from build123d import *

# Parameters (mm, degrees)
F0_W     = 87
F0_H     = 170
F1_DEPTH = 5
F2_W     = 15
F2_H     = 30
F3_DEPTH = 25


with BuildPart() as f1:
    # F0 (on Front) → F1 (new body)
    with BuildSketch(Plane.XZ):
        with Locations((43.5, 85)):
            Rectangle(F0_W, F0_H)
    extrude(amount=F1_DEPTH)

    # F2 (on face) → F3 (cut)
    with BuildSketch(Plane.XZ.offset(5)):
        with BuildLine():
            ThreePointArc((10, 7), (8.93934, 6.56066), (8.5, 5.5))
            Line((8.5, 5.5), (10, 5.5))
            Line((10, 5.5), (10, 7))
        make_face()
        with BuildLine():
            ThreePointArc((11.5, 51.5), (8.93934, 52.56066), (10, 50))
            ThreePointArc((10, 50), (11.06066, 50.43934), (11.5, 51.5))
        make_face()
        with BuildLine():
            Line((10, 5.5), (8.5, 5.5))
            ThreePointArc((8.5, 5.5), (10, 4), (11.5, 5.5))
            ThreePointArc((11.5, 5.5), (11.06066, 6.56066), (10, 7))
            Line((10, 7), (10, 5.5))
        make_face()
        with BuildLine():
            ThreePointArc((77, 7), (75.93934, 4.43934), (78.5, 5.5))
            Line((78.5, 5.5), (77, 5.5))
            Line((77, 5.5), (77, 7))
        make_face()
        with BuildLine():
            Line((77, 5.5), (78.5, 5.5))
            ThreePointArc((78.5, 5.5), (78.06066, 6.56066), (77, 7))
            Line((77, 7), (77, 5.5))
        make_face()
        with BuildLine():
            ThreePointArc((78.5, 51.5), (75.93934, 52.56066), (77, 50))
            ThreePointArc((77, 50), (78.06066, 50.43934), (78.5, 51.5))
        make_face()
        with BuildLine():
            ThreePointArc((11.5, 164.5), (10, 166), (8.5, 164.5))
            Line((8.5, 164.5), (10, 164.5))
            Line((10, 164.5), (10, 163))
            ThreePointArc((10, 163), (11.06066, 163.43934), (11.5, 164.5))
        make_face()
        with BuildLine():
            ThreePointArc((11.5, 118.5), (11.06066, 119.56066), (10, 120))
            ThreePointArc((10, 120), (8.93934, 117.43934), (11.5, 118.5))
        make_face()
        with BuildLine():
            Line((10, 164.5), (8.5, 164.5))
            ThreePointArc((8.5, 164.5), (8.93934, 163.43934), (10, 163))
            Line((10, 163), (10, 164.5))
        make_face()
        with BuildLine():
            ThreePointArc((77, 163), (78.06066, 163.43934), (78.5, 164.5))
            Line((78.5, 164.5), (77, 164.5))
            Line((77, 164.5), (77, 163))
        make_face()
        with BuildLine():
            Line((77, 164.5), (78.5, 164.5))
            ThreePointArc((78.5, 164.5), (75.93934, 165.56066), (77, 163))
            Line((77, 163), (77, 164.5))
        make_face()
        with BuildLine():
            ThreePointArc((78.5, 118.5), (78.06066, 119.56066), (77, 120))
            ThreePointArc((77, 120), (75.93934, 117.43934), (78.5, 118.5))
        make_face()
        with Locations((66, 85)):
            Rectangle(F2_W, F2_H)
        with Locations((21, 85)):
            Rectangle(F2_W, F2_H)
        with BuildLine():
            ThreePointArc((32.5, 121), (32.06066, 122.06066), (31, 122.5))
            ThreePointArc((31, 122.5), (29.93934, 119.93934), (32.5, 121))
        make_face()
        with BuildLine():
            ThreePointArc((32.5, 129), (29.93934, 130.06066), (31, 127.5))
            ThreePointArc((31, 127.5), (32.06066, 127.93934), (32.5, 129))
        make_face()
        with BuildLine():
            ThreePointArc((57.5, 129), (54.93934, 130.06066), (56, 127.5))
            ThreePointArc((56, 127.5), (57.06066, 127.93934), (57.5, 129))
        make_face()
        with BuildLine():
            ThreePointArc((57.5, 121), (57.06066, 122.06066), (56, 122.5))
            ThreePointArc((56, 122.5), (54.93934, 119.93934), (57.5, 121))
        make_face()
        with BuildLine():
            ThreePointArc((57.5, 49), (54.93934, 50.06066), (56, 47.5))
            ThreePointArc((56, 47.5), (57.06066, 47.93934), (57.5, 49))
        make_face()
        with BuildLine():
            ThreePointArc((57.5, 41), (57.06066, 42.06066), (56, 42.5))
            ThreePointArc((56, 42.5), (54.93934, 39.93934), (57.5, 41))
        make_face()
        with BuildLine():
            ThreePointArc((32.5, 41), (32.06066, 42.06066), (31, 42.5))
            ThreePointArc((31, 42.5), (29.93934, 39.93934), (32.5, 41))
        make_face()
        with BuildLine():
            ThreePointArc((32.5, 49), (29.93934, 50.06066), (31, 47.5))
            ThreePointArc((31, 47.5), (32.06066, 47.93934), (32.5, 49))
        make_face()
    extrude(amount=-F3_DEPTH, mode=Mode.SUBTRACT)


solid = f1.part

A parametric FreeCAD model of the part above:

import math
import FreeCAD as App
import Part
import Sketcher

V = App.Vector


def add_polygon(sketch, points):
    """Adds a closed chain of lines whose ends are joined by coincident constraints."""
    first, n = sketch.GeometryCount, len(points)
    for a, b in zip(points, points[1:] + points[:1]):
        sketch.addGeometry(Part.LineSegment(App.Vector(*a, 0), App.Vector(*b, 0)), False)
    for i in range(n):
        sketch.addConstraint(Sketcher.Constraint("Coincident", first + i, 2, first + (i + 1) % n, 1))

doc = App.newDocument("Part")
body = doc.addObject("PartDesign::Body", "Body")

sketch1 = body.newObject("Sketcher::SketchObject", "Sketch")
sketch1.AttachmentSupport = (doc.getObject("XZ_Plane"), [""])
sketch1.MapMode = "FlatFace"
add_polygon(sketch1, [(0, 170), (0, 0), (87, 0), (87, 170)])
sketch1.addConstraint(Sketcher.Constraint("Vertical", 0))
sketch1.addConstraint(Sketcher.Constraint("Horizontal", 1))
sketch1.addConstraint(Sketcher.Constraint("Vertical", 2))
sketch1.addConstraint(Sketcher.Constraint("Horizontal", 3))
sketch1.addConstraint(Sketcher.Constraint("Coincident", 0, 2, -1, 1))
sketch1.addConstraint(Sketcher.Constraint("DistanceX", 1, 1, 1, 2, 87.0))
sketch1.addConstraint(Sketcher.Constraint("DistanceY", 0, 2, 0, 1, 170.0))
pad1 = body.newObject("PartDesign::Pad", "Pad")
pad1.Profile = sketch1
pad1.Length = 5

sketch2 = body.newObject("Sketcher::SketchObject", "Sketch001")
sketch2.AttachmentSupport = (doc.getObject("XZ_Plane"), [""])
sketch2.MapMode = "FlatFace"
sketch2.AttachmentOffset = App.Placement(V(0, 0, 5), App.Rotation())
sketch2.addGeometry(Part.ArcOfCircle(Part.Circle(V(10.000001, 5.499999, 0), V(0, 0, 1), 1.500001), math.radians(90.000022), math.radians(179.999978)), False)
sketch2.addGeometry(Part.ArcOfCircle(Part.Circle(V(10, 5.5, 0), V(0, 0, 1), 1.5), math.radians(180), math.radians(360)), False)
sketch2.addGeometry(Part.ArcOfCircle(Part.Circle(V(9.999999, 5.499999, 0), V(0, 0, 1), 1.500001), math.radians(0.000022), math.radians(89.999978)), False)
sketch2.addGeometry(Part.ArcOfCircle(Part.Circle(V(10, 51.5, 0), V(0, 0, 1), 1.5), math.radians(0.000004), math.radians(269.999996)), False)
sketch2.addGeometry(Part.ArcOfCircle(Part.Circle(V(9.999999, 51.500001, 0), V(0, 0, 1), 1.500001), math.radians(-89.999978), math.radians(-0.000022)), False)
sketch2.addGeometry(Part.ArcOfCircle(Part.Circle(V(77, 5.5, 0), V(0, 0, 1), 1.5), math.radians(90.000004), math.radians(359.999996)), False)
sketch2.addGeometry(Part.ArcOfCircle(Part.Circle(V(76.999999, 5.499999, 0), V(0, 0, 1), 1.500001), math.radians(0.000022), math.radians(89.999978)), False)
sketch2.addGeometry(Part.ArcOfCircle(Part.Circle(V(77, 51.5, 0), V(0, 0, 1), 1.5), math.radians(0.000004), math.radians(269.999996)), False)
sketch2.addGeometry(Part.ArcOfCircle(Part.Circle(V(76.999999, 51.500001, 0), V(0, 0, 1), 1.500001), math.radians(-89.999978), math.radians(-0.000022)), False)
sketch2.addGeometry(Part.ArcOfCircle(Part.Circle(V(10, 164.5, 0), V(0, 0, 1), 1.5), math.radians(0), math.radians(180)), False)
sketch2.addGeometry(Part.ArcOfCircle(Part.Circle(V(10.000001, 164.500001, 0), V(0, 0, 1), 1.500001), math.radians(-179.999978), math.radians(-90.000022)), False)
sketch2.addGeometry(Part.ArcOfCircle(Part.Circle(V(9.999999, 164.500001, 0), V(0, 0, 1), 1.500001), math.radians(-89.999978), math.radians(-0.000022)), False)
sketch2.addGeometry(Part.ArcOfCircle(Part.Circle(V(9.999999, 118.499999, 0), V(0, 0, 1), 1.500001), math.radians(0.000022), math.radians(89.999978)), False)
sketch2.addGeometry(Part.ArcOfCircle(Part.Circle(V(10, 118.5, 0), V(0, 0, 1), 1.5), math.radians(90.000004), math.radians(359.999996)), False)
sketch2.addGeometry(Part.ArcOfCircle(Part.Circle(V(76.999999, 164.500001, 0), V(0, 0, 1), 1.500001), math.radians(-89.999978), math.radians(-0.000022)), False)
sketch2.addGeometry(Part.ArcOfCircle(Part.Circle(V(77, 164.5, 0), V(0, 0, 1), 1.5), math.radians(0.000004), math.radians(269.999996)), False)
sketch2.addGeometry(Part.ArcOfCircle(Part.Circle(V(76.999999, 118.499999, 0), V(0, 0, 1), 1.500001), math.radians(0.000022), math.radians(89.999978)), False)
sketch2.addGeometry(Part.ArcOfCircle(Part.Circle(V(77, 118.5, 0), V(0, 0, 1), 1.5), math.radians(90.000004), math.radians(359.999996)), False)
add_polygon(sketch2, [(58.5, 100), (58.5, 70), (73.5, 70), (73.5, 100)])
add_polygon(sketch2, [(13.5, 100), (13.5, 70), (28.5, 70), (28.5, 100)])
sketch2.addGeometry(Part.ArcOfCircle(Part.Circle(V(30.999999, 120.999999, 0), V(0, 0, 1), 1.500001), math.radians(0.000022), math.radians(89.999978)), False)
sketch2.addGeometry(Part.ArcOfCircle(Part.Circle(V(31, 121, 0), V(0, 0, 1), 1.5), math.radians(90.000004), math.radians(359.999996)), False)
sketch2.addGeometry(Part.ArcOfCircle(Part.Circle(V(31, 129, 0), V(0, 0, 1), 1.5), math.radians(0.000004), math.radians(269.999996)), False)
sketch2.addGeometry(Part.ArcOfCircle(Part.Circle(V(30.999999, 129.000001, 0), V(0, 0, 1), 1.500001), math.radians(-89.999978), math.radians(-0.000022)), False)
sketch2.addGeometry(Part.ArcOfCircle(Part.Circle(V(56, 129, 0), V(0, 0, 1), 1.5), math.radians(0.000004), math.radians(269.999996)), False)
sketch2.addGeometry(Part.ArcOfCircle(Part.Circle(V(55.999999, 129.000001, 0), V(0, 0, 1), 1.500001), math.radians(-89.999978), math.radians(-0.000022)), False)
sketch2.addGeometry(Part.ArcOfCircle(Part.Circle(V(55.999999, 120.999999, 0), V(0, 0, 1), 1.500001), math.radians(0.000022), math.radians(89.999978)), False)
sketch2.addGeometry(Part.ArcOfCircle(Part.Circle(V(56, 121, 0), V(0, 0, 1), 1.5), math.radians(90.000004), math.radians(359.999996)), False)
sketch2.addGeometry(Part.ArcOfCircle(Part.Circle(V(56, 49, 0), V(0, 0, 1), 1.5), math.radians(0.000004), math.radians(269.999996)), False)
sketch2.addGeometry(Part.ArcOfCircle(Part.Circle(V(55.999999, 49.000001, 0), V(0, 0, 1), 1.500001), math.radians(-89.999978), math.radians(-0.000022)), False)
sketch2.addGeometry(Part.ArcOfCircle(Part.Circle(V(55.999999, 40.999999, 0), V(0, 0, 1), 1.500001), math.radians(0.000022), math.radians(89.999978)), False)
sketch2.addGeometry(Part.ArcOfCircle(Part.Circle(V(56, 41, 0), V(0, 0, 1), 1.5), math.radians(90.000004), math.radians(359.999996)), False)
sketch2.addGeometry(Part.ArcOfCircle(Part.Circle(V(30.999999, 40.999999, 0), V(0, 0, 1), 1.500001), math.radians(0.000022), math.radians(89.999978)), False)
sketch2.addGeometry(Part.ArcOfCircle(Part.Circle(V(31, 41, 0), V(0, 0, 1), 1.5), math.radians(90.000004), math.radians(359.999996)), False)
sketch2.addGeometry(Part.ArcOfCircle(Part.Circle(V(31, 49, 0), V(0, 0, 1), 1.5), math.radians(0.000004), math.radians(269.999996)), False)
sketch2.addGeometry(Part.ArcOfCircle(Part.Circle(V(30.999999, 49.000001, 0), V(0, 0, 1), 1.500001), math.radians(-89.999978), math.radians(-0.000022)), False)
sketch2.addConstraint(Sketcher.Constraint("Tangent", 0, 2, 1, 1))
sketch2.addConstraint(Sketcher.Constraint("Tangent", 1, 2, 2, 1))
sketch2.addConstraint(Sketcher.Constraint("Tangent", 2, 2, 0, 1))
sketch2.addConstraint(Sketcher.Constraint("Tangent", 3, 1, 4, 2))
sketch2.addConstraint(Sketcher.Constraint("Coincident", 4, 1, 3, 2))
sketch2.addConstraint(Sketcher.Constraint("Tangent", 5, 1, 6, 2))
sketch2.addConstraint(Sketcher.Constraint("Coincident", 6, 1, 5, 2))
sketch2.addConstraint(Sketcher.Constraint("Tangent", 7, 1, 8, 2))
sketch2.addConstraint(Sketcher.Constraint("Coincident", 8, 1, 7, 2))
sketch2.addConstraint(Sketcher.Constraint("Tangent", 9, 2, 10, 1))
sketch2.addConstraint(Sketcher.Constraint("Tangent", 10, 2, 11, 1))
sketch2.addConstraint(Sketcher.Constraint("Tangent", 11, 2, 9, 1))
sketch2.addConstraint(Sketcher.Constraint("Tangent", 12, 1, 13, 2))
sketch2.addConstraint(Sketcher.Constraint("Coincident", 13, 1, 12, 2))
sketch2.addConstraint(Sketcher.Constraint("Tangent", 14, 1, 15, 2))
sketch2.addConstraint(Sketcher.Constraint("Coincident", 15, 1, 14, 2))
sketch2.addConstraint(Sketcher.Constraint("Tangent", 16, 1, 17, 2))
sketch2.addConstraint(Sketcher.Constraint("Coincident", 17, 1, 16, 2))
sketch2.addConstraint(Sketcher.Constraint("Tangent", 26, 1, 27, 2))
sketch2.addConstraint(Sketcher.Constraint("Coincident", 27, 1, 26, 2))
sketch2.addConstraint(Sketcher.Constraint("Tangent", 28, 1, 29, 2))
sketch2.addConstraint(Sketcher.Constraint("Coincident", 29, 1, 28, 2))
sketch2.addConstraint(Sketcher.Constraint("Tangent", 30, 1, 31, 2))
sketch2.addConstraint(Sketcher.Constraint("Coincident", 31, 1, 30, 2))
sketch2.addConstraint(Sketcher.Constraint("Tangent", 32, 1, 33, 2))
sketch2.addConstraint(Sketcher.Constraint("Coincident", 33, 1, 32, 2))
sketch2.addConstraint(Sketcher.Constraint("Tangent", 34, 1, 35, 2))
sketch2.addConstraint(Sketcher.Constraint("Coincident", 35, 1, 34, 2))
sketch2.addConstraint(Sketcher.Constraint("Tangent", 36, 1, 37, 2))
sketch2.addConstraint(Sketcher.Constraint("Coincident", 37, 1, 36, 2))
sketch2.addConstraint(Sketcher.Constraint("Tangent", 38, 1, 39, 2))
sketch2.addConstraint(Sketcher.Constraint("Coincident", 39, 1, 38, 2))
sketch2.addConstraint(Sketcher.Constraint("Tangent", 40, 1, 41, 2))
sketch2.addConstraint(Sketcher.Constraint("Coincident", 41, 1, 40, 2))
sketch2.addConstraint(Sketcher.Constraint("Vertical", 18))
sketch2.addConstraint(Sketcher.Constraint("Horizontal", 19))
sketch2.addConstraint(Sketcher.Constraint("Vertical", 20))
sketch2.addConstraint(Sketcher.Constraint("Horizontal", 21))
sketch2.addConstraint(Sketcher.Constraint("Vertical", 22))
sketch2.addConstraint(Sketcher.Constraint("Horizontal", 23))
sketch2.addConstraint(Sketcher.Constraint("Vertical", 24))
sketch2.addConstraint(Sketcher.Constraint("Horizontal", 25))
sketch2.addConstraint(Sketcher.Constraint("Equal", 2, 3))
sketch2.addConstraint(Sketcher.Constraint("Equal", 4, 5))
sketch2.addConstraint(Sketcher.Constraint("Equal", 6, 7))
sketch2.addConstraint(Sketcher.Constraint("Equal", 8, 9))
sketch2.addConstraint(Sketcher.Constraint("Equal", 11, 12))
sketch2.addConstraint(Sketcher.Constraint("Equal", 13, 14))
sketch2.addConstraint(Sketcher.Constraint("Equal", 15, 16))
sketch2.addConstraint(Sketcher.Constraint("Equal", 17, 26))
sketch2.addConstraint(Sketcher.Constraint("Equal", 27, 28))
sketch2.addConstraint(Sketcher.Constraint("Equal", 29, 30))
sketch2.addConstraint(Sketcher.Constraint("Equal", 31, 32))
sketch2.addConstraint(Sketcher.Constraint("Equal", 33, 34))
sketch2.addConstraint(Sketcher.Constraint("Equal", 35, 36))
sketch2.addConstraint(Sketcher.Constraint("Equal", 37, 38))
sketch2.addConstraint(Sketcher.Constraint("Equal", 39, 40))
sketch2.addConstraint(Sketcher.Constraint("Horizontal", 2, 3, 5, 3))
sketch2.addConstraint(Sketcher.Constraint("Horizontal", 4, 3, 7, 3))
sketch2.addConstraint(Sketcher.Constraint("Horizontal", 11, 3, 14, 3))
sketch2.addConstraint(Sketcher.Constraint("Horizontal", 13, 3, 16, 3))
sketch2.addConstraint(Sketcher.Constraint("Horizontal", 29, 3, 30, 3))
sketch2.addConstraint(Sketcher.Constraint("Horizontal", 27, 3, 32, 3))
sketch2.addConstraint(Sketcher.Constraint("Horizontal", 37, 3, 38, 3))
sketch2.addConstraint(Sketcher.Constraint("Horizontal", 35, 3, 40, 3))
sketch2.addConstraint(Sketcher.Constraint("Horizontal", 6, 3, 0, 2))
sketch2.addConstraint(Sketcher.Constraint("Horizontal", 0, 2, 1, 2))
sketch2.addConstraint(Sketcher.Constraint("Horizontal", 8, 3, 3, 1))
sketch2.addConstraint(Sketcher.Constraint("Horizontal", 1, 2, 6, 1))
sketch2.addConstraint(Sketcher.Constraint("Horizontal", 3, 1, 7, 1))
sketch2.addConstraint(Sketcher.Constraint("Horizontal", 15, 3, 9, 2))
sketch2.addConstraint(Sketcher.Constraint("Horizontal", 9, 2, 11, 2))
sketch2.addConstraint(Sketcher.Constraint("Horizontal", 17, 3, 12, 1))
sketch2.addConstraint(Sketcher.Constraint("Horizontal", 11, 2, 15, 1))
sketch2.addConstraint(Sketcher.Constraint("Horizontal", 12, 1, 16, 1))
sketch2.addConstraint(Sketcher.Constraint("Horizontal", 19, 2, 22, 2))
sketch2.addConstraint(Sketcher.Constraint("Horizontal", 21, 2, 24, 2))
sketch2.addConstraint(Sketcher.Constraint("Horizontal", 33, 3, 26, 1))
sketch2.addConstraint(Sketcher.Constraint("Horizontal", 31, 3, 28, 1))
sketch2.addConstraint(Sketcher.Constraint("Horizontal", 28, 1, 30, 1))
sketch2.addConstraint(Sketcher.Constraint("Horizontal", 26, 1, 32, 1))
sketch2.addConstraint(Sketcher.Constraint("Horizontal", 41, 3, 34, 1))
sketch2.addConstraint(Sketcher.Constraint("Horizontal", 39, 3, 36, 1))
sketch2.addConstraint(Sketcher.Constraint("Horizontal", 36, 1, 38, 1))
sketch2.addConstraint(Sketcher.Constraint("Horizontal", 34, 1, 40, 1))
sketch2.addConstraint(Sketcher.Constraint("Vertical", 2, 3, 3, 3))
sketch2.addConstraint(Sketcher.Constraint("Vertical", 6, 3, 7, 3))
sketch2.addConstraint(Sketcher.Constraint("Vertical", 4, 3, 9, 3))
sketch2.addConstraint(Sketcher.Constraint("Vertical", 11, 3, 12, 3))
sketch2.addConstraint(Sketcher.Constraint("Vertical", 8, 3, 14, 3))
sketch2.addConstraint(Sketcher.Constraint("Vertical", 15, 3, 16, 3))
sketch2.addConstraint(Sketcher.Constraint("Vertical", 27, 3, 28, 3))
sketch2.addConstraint(Sketcher.Constraint("Vertical", 31, 3, 32, 3))
sketch2.addConstraint(Sketcher.Constraint("Vertical", 33, 3, 34, 3))
sketch2.addConstraint(Sketcher.Constraint("Vertical", 35, 3, 36, 3))
sketch2.addConstraint(Sketcher.Constraint("Vertical", 29, 3, 38, 3))
sketch2.addConstraint(Sketcher.Constraint("Vertical", 39, 3, 40, 3))
sketch2.addConstraint(Sketcher.Constraint("Vertical", 13, 3, 2, 2))
sketch2.addConstraint(Sketcher.Constraint("Vertical", 2, 2, 4, 1))
sketch2.addConstraint(Sketcher.Constraint("Vertical", 17, 3, 5, 1))
sketch2.addConstraint(Sketcher.Constraint("Vertical", 5, 1, 8, 1))
sketch2.addConstraint(Sketcher.Constraint("Vertical", 4, 1, 10, 2))
sketch2.addConstraint(Sketcher.Constraint("Vertical", 10, 2, 13, 1))
sketch2.addConstraint(Sketcher.Constraint("Vertical", 8, 1, 14, 1))
sketch2.addConstraint(Sketcher.Constraint("Vertical", 14, 1, 17, 1))
sketch2.addConstraint(Sketcher.Constraint("Vertical", 41, 3, 27, 1))
sketch2.addConstraint(Sketcher.Constraint("Vertical", 27, 1, 29, 1))
sketch2.addConstraint(Sketcher.Constraint("Vertical", 37, 3, 31, 1))
sketch2.addConstraint(Sketcher.Constraint("Vertical", 31, 1, 33, 1))
sketch2.addConstraint(Sketcher.Constraint("Vertical", 33, 1, 35, 1))
sketch2.addConstraint(Sketcher.Constraint("Vertical", 35, 1, 37, 1))
sketch2.addConstraint(Sketcher.Constraint("Vertical", 29, 1, 39, 1))
sketch2.addConstraint(Sketcher.Constraint("Vertical", 39, 1, 41, 1))
sketch2.addConstraint(Sketcher.Constraint("Equal", 21, 23))
sketch2.addConstraint(Sketcher.Constraint("Radius", 0, 1.500001))
sketch2.addConstraint(Sketcher.Constraint("DistanceX", 19, 1, 19, 2, 15.0))
sketch2.addConstraint(Sketcher.Constraint("DistanceY", 18, 2, 18, 1, 30.0))
sketch2.addConstraint(Sketcher.Constraint("DistanceX", -1, 1, 0, 3, 10.000001))
sketch2.addConstraint(Sketcher.Constraint("DistanceX", -1, 1, 5, 3, 77.0))
sketch2.addConstraint(Sketcher.Constraint("DistanceX", -1, 1, 26, 3, 30.999999))
sketch2.addConstraint(Sketcher.Constraint("DistanceY", -1, 1, 26, 3, 120.999999))
sketch2.addConstraint(Sketcher.Constraint("DistanceY", -1, 1, 28, 3, 129.0))
sketch2.addConstraint(Sketcher.Constraint("DistanceX", -1, 1, 30, 3, 56.0))
sketch2.addConstraint(Sketcher.Constraint("DistanceY", -1, 1, 34, 3, 49.0))
sketch2.addConstraint(Sketcher.Constraint("DistanceY", -1, 1, 36, 3, 40.999999))
sketch2.addConstraint(Sketcher.Constraint("DistanceY", -1, 1, 2, 2, 7.0))
sketch2.addConstraint(Sketcher.Constraint("DistanceY", -1, 1, 4, 1, 50.0))
sketch2.addConstraint(Sketcher.Constraint("DistanceY", -1, 1, 10, 2, 163.0))
sketch2.addConstraint(Sketcher.Constraint("DistanceY", -1, 1, 13, 1, 120.0))
sketch2.addConstraint(Sketcher.Constraint("DistanceY", -1, 1, 18, 2, 70.0))
sketch2.addConstraint(Sketcher.Constraint("DistanceX", -1, 1, 18, 2, 58.5))
sketch2.addConstraint(Sketcher.Constraint("DistanceX", -1, 1, 22, 2, 13.5))
pocket1 = body.newObject("PartDesign::Pocket", "Pocket")
pocket1.Profile = sketch2
pocket1.Length = 25

doc.recompute()
